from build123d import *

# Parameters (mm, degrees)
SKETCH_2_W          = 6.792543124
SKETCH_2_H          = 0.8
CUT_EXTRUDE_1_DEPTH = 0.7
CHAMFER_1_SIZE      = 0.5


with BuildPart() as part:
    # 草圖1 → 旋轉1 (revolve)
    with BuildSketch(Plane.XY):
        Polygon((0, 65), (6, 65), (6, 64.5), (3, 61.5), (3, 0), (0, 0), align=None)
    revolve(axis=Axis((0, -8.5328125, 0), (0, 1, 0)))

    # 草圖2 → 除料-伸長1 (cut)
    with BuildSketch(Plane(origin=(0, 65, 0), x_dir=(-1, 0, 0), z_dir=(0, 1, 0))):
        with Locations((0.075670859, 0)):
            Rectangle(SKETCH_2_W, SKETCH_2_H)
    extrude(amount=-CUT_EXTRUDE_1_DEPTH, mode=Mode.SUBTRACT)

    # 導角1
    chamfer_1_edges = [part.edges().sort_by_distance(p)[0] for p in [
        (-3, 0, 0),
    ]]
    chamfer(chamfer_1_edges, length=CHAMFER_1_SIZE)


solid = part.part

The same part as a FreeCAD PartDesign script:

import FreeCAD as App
import Part
import Sketcher
Q = App.Units.Quantity


def edges_at(feature, points):
    """Names of the edges that pass closest to the given points."""
    edges = feature.Shape.Edges
    near = lambda p: min(range(len(edges)), key=lambda i: edges[i].distToShape(Part.Vertex(*p))[0])
    return sorted({f"Edge{near(p) + 1}" for p in points})

doc = App.newDocument("Part")
body = doc.addObject("PartDesign::Body", "Body")

# Sketch on XY plane
sketch1 = doc.addObject("Sketcher::SketchObject", "Sketch")
body.addObject(sketch1)
sketch1.AttachmentSupport = (doc.XY_Plane, [""])
sketch1.MapMode = "FlatFace"
sketch1.addGeometry([
    Part.LineSegment(App.Vector(6, 65, 0), App.Vector(0, 65, 0)),  # 0
    Part.LineSegment(App.Vector(0, 65, 0), App.Vector(0, 0, 0)),  # 1
    Part.LineSegment(App.Vector(0, 0, 0), App.Vector(3, 0, 0)),  # 2
    Part.LineSegment(App.Vector(3, 0, 0), App.Vector(3, 61.5, 0)),  # 3
    Part.LineSegment(App.Vector(3, 61.5, 0), App.Vector(6, 64.5, 0)),  # 4
    Part.LineSegment(App.Vector(6, 64.5, 0), App.Vector(6, 65, 0)),  # 5
], False)
sketch1.addConstraint([
    Sketcher.Constraint("Coincident", 0, 2, 1, 1),
    Sketcher.Constraint("Coincident", 1, 2, 2, 1),
    Sketcher.Constraint("Coincident", 2, 2, 3, 1),
    Sketcher.Constraint("Coincident", 3, 2, 4, 1),
    Sketcher.Constraint("Coincident", 4, 2, 5, 1),
    Sketcher.Constraint("Coincident", 5, 2, 0, 1),
    Sketcher.Constraint("Horizontal", 0),
    Sketcher.Constraint("Vertical", 1),
    Sketcher.Constraint("Horizontal", 2),
    Sketcher.Constraint("Vertical", 3),
    Sketcher.Constraint("Vertical", 5),
    Sketcher.Constraint("Coincident", 1, 2, -1, 1),
    Sketcher.Constraint("DistanceX", 0, 2, 0, 1, 6.0),
    Sketcher.Constraint("DistanceX", 2, 1, 2, 2, 3.0),
    Sketcher.Constraint("DistanceY", 1, 2, 1, 1, 65.0),
    Sketcher.Constraint("Angle", 4, Q("45 deg")),
    Sketcher.Constraint("DistanceY", 3, 1, 3, 2, 61.5),
])
revolution = doc.addObject("PartDesign::Revolution", "Revolution")
body.addObject(revolution)
revolution.Profile = sketch1
revolution.ReferenceAxis = (sketch1, ["V_Axis"])
revolution.Angle = 360

# Sketch on XZ plane
sketch2 = doc.addObject("Sketcher::SketchObject", "Sketch001")
body.addObject(sketch2)
sketch2.AttachmentSupport = (doc.XZ_Plane, [""])
sketch2.MapMode = "FlatFace"
sketch2.AttachmentOffset = App.Placement(App.Vector(0, 0, -65), App.Rotation())
sketch2.addGeometry([
    Part.LineSegment(App.Vector(3.320601, 0.4, 0), App.Vector(3.320601, -0.4, 0)),
    Part.LineSegment(App.Vector(3.320601, -0.4, 0), App.Vector(-3.471942, -0.4, 0)),
    Part.LineSegment(App.Vector(-3.471942, -0.4, 0), App.Vector(-3.471942, 0.4, 0)),
    Part.LineSegment(App.Vector(-3.471942, 0.4, 0), App.Vector(3.320601, 0.4, 0)),
], False)
sketch2.addConstraint([
    Sketcher.Constraint("Coincident", 0, 2, 1, 1),
    Sketcher.Constraint("Coincident", 1, 2, 2, 1),
    Sketcher.Constraint("Coincident", 2, 2, 3, 1),
    Sketcher.Constraint("Coincident", 3, 2, 0, 1),
    Sketcher.Constraint("Vertical", 0),
    Sketcher.Constraint("Horizontal", 1),
    Sketcher.Constraint("Vertical", 2),
    Sketcher.Constraint("Horizontal", 3),
    Sketcher.Constraint("DistanceY", 0, 2, 0, 1, 0.8),
    Sketcher.Constraint("DistanceY", 0, 2, -1, 1, 0.4),
    Sketcher.Constraint("DistanceX", -1, 1, 0, 2, 3.320601),
    Sketcher.Constraint("DistanceX", 1, 2, 1, 1, 6.792543),
])
pocket1 = doc.addObject("PartDesign::Pocket", "Pocket")
body.addObject(pocket1)
pocket1.Profile = sketch2
pocket1.Length = 0.7
pocket1.Reversed = True
doc.recompute()

chamfer = doc.addObject("PartDesign::Chamfer", "Chamfer")
body.addObject(chamfer)
chamfer.Base = (pocket1, edges_at(pocket1, [(-3, 0, 0)]))
chamfer.Size = 0.5

doc.recompute()
